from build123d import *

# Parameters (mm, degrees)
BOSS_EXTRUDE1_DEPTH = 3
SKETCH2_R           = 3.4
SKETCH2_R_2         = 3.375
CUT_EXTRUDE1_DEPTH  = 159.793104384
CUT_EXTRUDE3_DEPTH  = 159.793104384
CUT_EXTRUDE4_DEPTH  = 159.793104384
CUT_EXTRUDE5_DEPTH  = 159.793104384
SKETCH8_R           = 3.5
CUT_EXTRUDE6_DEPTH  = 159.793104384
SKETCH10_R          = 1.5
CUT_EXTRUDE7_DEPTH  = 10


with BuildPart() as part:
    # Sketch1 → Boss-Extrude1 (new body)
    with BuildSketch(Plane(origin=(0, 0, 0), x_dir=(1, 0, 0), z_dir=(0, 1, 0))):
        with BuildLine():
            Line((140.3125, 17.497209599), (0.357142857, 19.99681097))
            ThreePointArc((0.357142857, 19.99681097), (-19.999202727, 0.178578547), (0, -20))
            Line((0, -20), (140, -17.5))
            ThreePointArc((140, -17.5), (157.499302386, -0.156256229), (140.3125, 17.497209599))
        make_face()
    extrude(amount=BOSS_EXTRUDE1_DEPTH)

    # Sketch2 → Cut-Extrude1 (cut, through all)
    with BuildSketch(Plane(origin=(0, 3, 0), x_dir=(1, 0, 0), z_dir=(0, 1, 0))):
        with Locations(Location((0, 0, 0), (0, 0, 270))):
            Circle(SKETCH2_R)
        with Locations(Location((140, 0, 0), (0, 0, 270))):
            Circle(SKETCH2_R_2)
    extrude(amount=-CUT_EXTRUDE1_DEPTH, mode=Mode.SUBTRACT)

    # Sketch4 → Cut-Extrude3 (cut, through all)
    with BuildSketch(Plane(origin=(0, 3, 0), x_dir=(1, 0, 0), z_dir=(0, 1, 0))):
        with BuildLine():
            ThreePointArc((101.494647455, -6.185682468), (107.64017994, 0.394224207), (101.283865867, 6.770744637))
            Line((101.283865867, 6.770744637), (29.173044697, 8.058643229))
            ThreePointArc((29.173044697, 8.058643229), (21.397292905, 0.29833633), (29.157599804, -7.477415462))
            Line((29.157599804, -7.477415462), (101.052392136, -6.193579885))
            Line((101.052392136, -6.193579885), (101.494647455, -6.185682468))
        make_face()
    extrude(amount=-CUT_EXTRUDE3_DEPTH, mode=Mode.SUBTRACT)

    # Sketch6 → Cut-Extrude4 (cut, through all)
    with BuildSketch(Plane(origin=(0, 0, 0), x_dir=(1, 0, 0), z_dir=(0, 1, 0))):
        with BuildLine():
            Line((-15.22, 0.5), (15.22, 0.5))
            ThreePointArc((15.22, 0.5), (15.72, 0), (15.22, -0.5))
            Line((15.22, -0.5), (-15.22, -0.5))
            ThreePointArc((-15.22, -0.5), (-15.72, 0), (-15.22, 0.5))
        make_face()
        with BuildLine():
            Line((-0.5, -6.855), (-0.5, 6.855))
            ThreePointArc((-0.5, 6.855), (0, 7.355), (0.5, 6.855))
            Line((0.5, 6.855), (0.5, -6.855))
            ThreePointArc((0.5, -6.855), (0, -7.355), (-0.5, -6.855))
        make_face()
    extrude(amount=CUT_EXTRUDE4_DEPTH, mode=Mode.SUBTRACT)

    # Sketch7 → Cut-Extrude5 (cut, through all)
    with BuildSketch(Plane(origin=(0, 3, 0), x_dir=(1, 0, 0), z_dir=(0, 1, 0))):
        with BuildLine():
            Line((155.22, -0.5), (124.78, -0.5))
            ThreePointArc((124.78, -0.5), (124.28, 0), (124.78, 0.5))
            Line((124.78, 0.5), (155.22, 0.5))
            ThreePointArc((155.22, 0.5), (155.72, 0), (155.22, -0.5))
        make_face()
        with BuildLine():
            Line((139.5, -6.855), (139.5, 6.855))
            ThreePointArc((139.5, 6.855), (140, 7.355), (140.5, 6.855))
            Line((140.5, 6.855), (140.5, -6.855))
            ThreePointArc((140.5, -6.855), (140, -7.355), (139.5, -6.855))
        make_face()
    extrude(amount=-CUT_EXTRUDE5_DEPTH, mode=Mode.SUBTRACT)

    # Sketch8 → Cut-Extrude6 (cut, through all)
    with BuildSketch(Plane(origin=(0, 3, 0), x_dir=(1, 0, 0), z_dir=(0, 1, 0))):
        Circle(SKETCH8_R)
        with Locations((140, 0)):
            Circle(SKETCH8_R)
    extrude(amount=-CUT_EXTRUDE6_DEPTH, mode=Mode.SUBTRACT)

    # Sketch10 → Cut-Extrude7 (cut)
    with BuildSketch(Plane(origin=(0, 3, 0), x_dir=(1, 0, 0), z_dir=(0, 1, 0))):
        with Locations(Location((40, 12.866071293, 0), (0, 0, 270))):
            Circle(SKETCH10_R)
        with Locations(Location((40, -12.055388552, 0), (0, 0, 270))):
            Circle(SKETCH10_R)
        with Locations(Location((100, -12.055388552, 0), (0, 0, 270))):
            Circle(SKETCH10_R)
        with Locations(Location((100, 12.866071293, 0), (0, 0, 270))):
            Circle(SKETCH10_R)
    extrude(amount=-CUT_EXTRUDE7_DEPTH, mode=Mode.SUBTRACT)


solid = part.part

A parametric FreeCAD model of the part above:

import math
import FreeCAD as App
import Part
import Sketcher
from FreeCAD import Vector
Q = App.Units.Quantity

doc = App.newDocument("Part")
body = doc.addObject("PartDesign::Body", "Body")

# Sketch on XZ plane
sketch1 = body.newObject("Sketcher::SketchObject", "Sketch")
sketch1.AttachmentSupport = (doc.getObject("XZ_Plane"), [""])
sketch1.MapMode = "FlatFace"
sketch1.addGeometry([
    Part.LineSegment(Vector(140, -17, 0), Vector(0, -20, 0)),
    Part.ArcOfCircle(Part.Circle(Vector(0, 0, 0), Vector(0, 0, 1), 20), math.radians(90), math.radians(271)),
    Part.LineSegment(Vector(0, 20, 0), Vector(140, 18, 0)),
    Part.ArcOfCircle(Part.Circle(Vector(140, 0, 0), Vector(0, 0, 1), 18), math.radians(-89), math.radians(90)),
], False)
sketch1.addConstraint([
    Sketcher.Constraint("Tangent", 0, 2, 1, 2),
    Sketcher.Constraint("Coincident", 1, 1, 2, 1),
    Sketcher.Constraint("Coincident", 2, 2, 3, 2),
    Sketcher.Constraint("Tangent", 3, 1, 0, 1),
    Sketcher.Constraint("Coincident", 1, 3, -1, 1),
    Sketcher.Constraint("PointOnObject", 3, 3, -1),
    Sketcher.Constraint("PointOnObject", 1, 1, -2),
    Sketcher.Constraint("Vertical", 3, 3, 2, 2),
    Sketcher.Constraint("Radius", 1, Q("20 mm")),
    Sketcher.Constraint("Radius", 3, Q("17.5 mm")),
    Sketcher.Constraint("DistanceX", -1, 1, 3, 3, Q("140 mm")),
])
pad1 = body.newObject("PartDesign::Pad", "Pad")
pad1.Profile = sketch1
pad1.Length = 3
pad1.Reversed = True

# Sketch on XZ plane
sketch2 = body.newObject("Sketcher::SketchObject", "Sketch001")
sketch2.AttachmentSupport = (doc.getObject("XZ_Plane"), [""])
sketch2.MapMode = "FlatFace"
sketch2.AttachmentOffset = App.Placement(Vector(0, 0, -3), App.Rotation())
sketch2.addGeometry([
    Part.Circle(Vector(0, 0, 0), Vector(0, 0, 1), 3.4),
    Part.Circle(Vector(140, 0, 0), Vector(0, 0, 1), 3.4),
], False)
sketch2.addConstraint([
    Sketcher.Constraint("Coincident", 0, 3, -1, 1),
    Sketcher.Constraint("PointOnObject", 1, 3, -1),
    Sketcher.Constraint("Diameter", 0, Q("6.8 mm")),
    Sketcher.Constraint("Diameter", 1, Q("6.75 mm")),
    Sketcher.Constraint("DistanceX", -1, 1, 1, 3, Q("140 mm")),
])
pocket1 = body.newObject("PartDesign::Pocket", "Pocket")
pocket1.Profile = sketch2
pocket1.Type = "ThroughAll"
pocket1.Reversed = True

# Sketch on XZ plane
sketch3 = body.newObject("Sketcher::SketchObject", "Sketch002")
sketch3.AttachmentSupport = (doc.getObject("XZ_Plane"), [""])
sketch3.MapMode = "FlatFace"
sketch3.AttachmentOffset = App.Placement(Vector(0, 0, -3), App.Rotation())
sketch3.addGeometry([
    Part.ArcOfCircle(Part.Circle(Vector(101.16, -0.29, 0), Vector(0, 0, 1), 6.48), math.radians(-89), math.radians(87)),  # 0
    Part.LineSegment(Vector(101.28, -6.77, 0), Vector(29.17, -8.06, 0)),  # 1
    Part.ArcOfCircle(Part.Circle(Vector(29.17, -0.29, 0), Vector(0, 0, 1), 7.77), math.radians(90), math.radians(270)),  # 2
    Part.LineSegment(Vector(29.16, 7.48, 0), Vector(101.05, 6.19, 0)),  # 3
    Part.LineSegment(Vector(101.05, 6.19, 0), Vector(101.49, 6.19, 0)),  # 4
], False)
sketch3.addConstraint([
    Sketcher.Constraint("Coincident", 0, 1, 1, 1),
    Sketcher.Constraint("Coincident", 1, 2, 2, 2),
    Sketcher.Constraint("Coincident", 2, 1, 3, 1),
    Sketcher.Constraint("Coincident", 3, 2, 4, 1),
    Sketcher.Constraint("Coincident", 4, 2, 0, 2),
    Sketcher.Constraint("Parallel", 3, 4),
    Sketcher.Constraint("Radius", 0, Q("6.483204 mm")),
    Sketcher.Constraint("Radius", 2, Q("7.768033 mm")),
    Sketcher.Constraint("DistanceX", -1, 1, 2, 1, Q("29.1576 mm")),
    Sketcher.Constraint("DistanceY", 1, 2, 0, 1, Q("1.287899 mm")),
    Sketcher.Constraint("Distance", 1, Q("72.122321 mm")),
    Sketcher.Constraint("DistanceY", -1, 1, 3, 2, Q("6.19358 mm")),
    Sketcher.Constraint("DistanceX", 2, 3, 0, 3, Q("71.992512 mm")),
    Sketcher.Constraint("DistanceX", 0, 3, 0, 1, Q("0.126032 mm")),
    Sketcher.Constraint("DistanceX", 3, 2, 0, 3, Q("0.105442 mm")),
    Sketcher.Constraint("DistanceY", 0, 3, 4, 2, Q("6.474449 mm")),
    Sketcher.Constraint("Distance", 3, Q("71.906254 mm")),
])
pocket2 = body.newObject("PartDesign::Pocket", "Pocket001")
pocket2.Profile = sketch3
pocket2.Type = "ThroughAll"
pocket2.Reversed = True

# Sketch on XZ plane
sketch4 = body.newObject("Sketcher::SketchObject", "Sketch003")
sketch4.AttachmentSupport = (doc.getObject("XZ_Plane"), [""])
sketch4.MapMode = "FlatFace"
sketch4.addGeometry([
    Part.ArcOfCircle(Part.Circle(Vector(-15.2, 0, 0), Vector(0, 0, 1), 0.5), math.radians(90), math.radians(270)),  # 0
    Part.LineSegment(Vector(-15.2, 0.5, 0), Vector(-0.5, 0.5, 0)),  # 1
    Part.LineSegment(Vector(-0.5, 0.5, 0), Vector(-0.5, 6.9, 0)),  # 2
    Part.ArcOfCircle(Part.Circle(Vector(0, 6.9, 0), Vector(0, 0, 1), 0.5), math.radians(0), math.radians(180)),  # 3
    Part.LineSegment(Vector(0.5, 6.9, 0), Vector(0.5, 0.5, 0)),  # 4
    Part.LineSegment(Vector(0.5, 0.5, 0), Vector(15.2, 0.5, 0)),  # 5
    Part.ArcOfCircle(Part.Circle(Vector(15.2, 0, 0), Vector(0, 0, 1), 0.5), math.radians(-90), math.radians(90)),  # 6
    Part.LineSegment(Vector(15.2, -0.5, 0), Vector(0.5, -0.5, 0)),  # 7
    Part.LineSegment(Vector(0.5, -0.5, 0), Vector(0.5, -6.9, 0)),  # 8
    Part.ArcOfCircle(Part.Circle(Vector(0, -6.9, 0), Vector(0, 0, 1), 0.5), math.radians(180), math.radians(360)),  # 9
    Part.LineSegment(Vector(-0.5, -6.9, 0), Vector(-0.5, -0.5, 0)),  # 10
    Part.LineSegment(Vector(-0.5, -0.5, 0), Vector(-15.2, -0.5, 0)),  # 11
], False)
sketch4.addConstraint([
    Sketcher.Constraint("Tangent", 0, 1, 1, 1),
    Sketcher.Constraint("Coincident", 1, 2, 2, 1),
    Sketcher.Constraint("Tangent", 2, 2, 3, 2),
    Sketcher.Constraint("Tangent", 3, 1, 4, 1),
    Sketcher.Constraint("Coincident", 4, 2, 5, 1),
    Sketcher.Constraint("Tangent", 5, 2, 6, 2),
    Sketcher.Constraint("Tangent", 6, 1, 7, 1),
    Sketcher.Constraint("Coincident", 7, 2, 8, 1),
    Sketcher.Constraint("Tangent", 8, 2, 9, 2),
    Sketcher.Constraint("Tangent", 9, 1, 10, 1),
    Sketcher.Constraint("Coincident", 10, 2, 11, 1),
    Sketcher.Constraint("Tangent", 11, 2, 0, 2),
    Sketcher.Constraint("Horizontal", 1),
    Sketcher.Constraint("Vertical", 2),
    Sketcher.Constraint("Vertical", 4),
    Sketcher.Constraint("Horizontal", 5),
    Sketcher.Constraint("Horizontal", 7),
    Sketcher.Constraint("Vertical", 8),
    Sketcher.Constraint("Vertical", 10),
    Sketcher.Constraint("Horizontal", 11),
    Sketcher.Constraint("Equal", 0, 3),
    Sketcher.Constraint("Equal", 3, 6),
    Sketcher.Constraint("Equal", 6, 9),
    Sketcher.Constraint("Symmetric", 0, 3, 6, 3, -1, 1),
    Sketcher.Constraint("Symmetric", 3, 3, 9, 3, -1, 1),
    Sketcher.Constraint("Symmetric", 1, 2, 4, 2, -2),
    Sketcher.Constraint("Radius", 0, Q("0.5 mm")),
    Sketcher.Constraint("DistanceX", 1, 1, 1, 2, Q("14.72 mm")),
    Sketcher.Constraint("DistanceY", 2, 1, 2, 2, Q("6.355 mm")),
])
pocket3 = body.newObject("PartDesign::Pocket", "Pocket002")
pocket3.Profile = sketch4
pocket3.Type = "ThroughAll"

# Sketch on XZ plane
sketch5 = body.newObject("Sketcher::SketchObject", "Sketch004")
sketch5.AttachmentSupport = (doc.getObject("XZ_Plane"), [""])
sketch5.MapMode = "FlatFace"
sketch5.AttachmentOffset = App.Placement(Vector(0, 0, -3), App.Rotation())
sketch5.addGeometry([
    Part.ArcOfCircle(Part.Circle(Vector(155.2, 0, 0), Vector(0, 0, 1), 0.5), math.radians(-90), math.radians(90)),  # 0
    Part.LineSegment(Vector(155.2, -0.5, 0), Vector(140.5, -0.5, 0)),  # 1
    Part.LineSegment(Vector(140.5, -0.5, 0), Vector(140.5, -6.9, 0)),  # 2
    Part.ArcOfCircle(Part.Circle(Vector(140, -6.9, 0), Vector(0, 0, 1), 0.5), math.radians(180), math.radians(360)),  # 3
    Part.LineSegment(Vector(139.5, -6.9, 0), Vector(139.5, -0.5, 0)),  # 4
    Part.LineSegment(Vector(139.5, -0.5, 0), Vector(124.8, -0.5, 0)),  # 5
    Part.ArcOfCircle(Part.Circle(Vector(124.8, 0, 0), Vector(0, 0, 1), 0.5), math.radians(90), math.radians(270)),  # 6
    Part.LineSegment(Vector(124.8, 0.5, 0), Vector(139.5, 0.5, 0)),  # 7
    Part.LineSegment(Vector(139.5, 0.5, 0), Vector(139.5, 6.9, 0)),  # 8
    Part.ArcOfCircle(Part.Circle(Vector(140, 6.9, 0), Vector(0, 0, 1), 0.5), math.radians(0), math.radians(180)),  # 9
    Part.LineSegment(Vector(140.5, 6.9, 0), Vector(140.5, 0.5, 0)),  # 10
    Part.LineSegment(Vector(140.5, 0.5, 0), Vector(155.2, 0.5, 0)),  # 11
], False)
sketch5.addConstraint([
    Sketcher.Constraint("Tangent", 0, 1, 1, 1),
    Sketcher.Constraint("Coincident", 1, 2, 2, 1),
    Sketcher.Constraint("Tangent", 2, 2, 3, 2),
    Sketcher.Constraint("Tangent", 3, 1, 4, 1),
    Sketcher.Constraint("Coincident", 4, 2, 5, 1),
    Sketcher.Constraint("Tangent", 5, 2, 6, 2),
    Sketcher.Constraint("Tangent", 6, 1, 7, 1),
    Sketcher.Constraint("Coincident", 7, 2, 8, 1),
    Sketcher.Constraint("Tangent", 8, 2, 9, 2),
    Sketcher.Constraint("Tangent", 9, 1, 10, 1),
    Sketcher.Constraint("Coincident", 10, 2, 11, 1),
    Sketcher.Constraint("Tangent", 11, 2, 0, 2),
    Sketcher.Constraint("Horizontal", 1),
    Sketcher.Constraint("Vertical", 2),
    Sketcher.Constraint("Vertical", 4),
    Sketcher.Constraint("Horizontal", 5),
    Sketcher.Constraint("Horizontal", 7),
    Sketcher.Constraint("Vertical", 8),
    Sketcher.Constraint("Vertical", 10),
    Sketcher.Constraint("Horizontal", 11),
    Sketcher.Constraint("Equal", 0, 3),
    Sketcher.Constraint("Equal", 3, 6),
    Sketcher.Constraint("Equal", 6, 9),
    Sketcher.Constraint("Symmetric", 3, 3, 9, 3, -1),
    Sketcher.Constraint("PointOnObject", 0, 3, -1),
    Sketcher.Constraint("PointOnObject", 6, 3, -1),
    Sketcher.Constraint("Equal", 1, 5),
    Sketcher.Constraint("Radius", 0, Q("0.5 mm")),
    Sketcher.Constraint("DistanceX", -1, 1, 3, 3, Q("140 mm")),
    Sketcher.Constraint("DistanceX", 1, 2, 1, 1, Q("14.72 mm")),
    Sketcher.Constraint("DistanceY", 2, 2, 2, 1, Q("6.355 mm")),
])
pocket4 = body.newObject("PartDesign::Pocket", "Pocket003")
pocket4.Profile = sketch5
pocket4.Type = "ThroughAll"
pocket4.Reversed = True

# Sketch on XZ plane
sketch6 = body.newObject("Sketcher::SketchObject", "Sketch005")
sketch6.AttachmentSupport = (doc.getObject("XZ_Plane"), [""])
sketch6.MapMode = "FlatFace"
sketch6.AttachmentOffset = App.Placement(Vector(0, 0, -3), App.Rotation())
sketch6.addGeometry([
    Part.Circle(Vector(0, 0, 0), Vector(0, 0, 1), 3.5),
    Part.Circle(Vector(140, 0, 0), Vector(0, 0, 1), 3.5),
], False)
sketch6.addConstraint([
    Sketcher.Constraint("Coincident", 0, 3, -1, 1),
    Sketcher.Constraint("Equal", 0, 1),
    Sketcher.Constraint("PointOnObject", 1, 3, -1),
    Sketcher.Constraint("Diameter", 0, Q("7 mm")),
    Sketcher.Constraint("DistanceX", -1, 1, 1, 3, Q("140 mm")),
])
pocket5 = body.newObject("PartDesign::Pocket", "Pocket004")
pocket5.Profile = sketch6
pocket5.Type = "ThroughAll"
pocket5.Reversed = True

# Sketch on XZ plane
sketch7 = body.newObject("Sketcher::SketchObject", "Sketch006")
sketch7.AttachmentSupport = (doc.getObject("XZ_Plane"), [""])
sketch7.MapMode = "FlatFace"
sketch7.AttachmentOffset = App.Placement(Vector(0, 0, -3), App.Rotation())
sketch7.addGeometry([
    Part.Circle(Vector(40, -12.9, 0), Vector(0, 0, 1), 1.5),
    Part.Circle(Vector(40, 12.1, 0), Vector(0, 0, 1), 1.5),
    Part.Circle(Vector(100, 12.1, 0), Vector(0, 0, 1), 1.5),
    Part.Circle(Vector(100, -12.9, 0), Vector(0, 0, 1), 1.5),
], False)
sketch7.addConstraint([
    Sketcher.Constraint("Equal", 0, 1),
    Sketcher.Constraint("Equal", 1, 2),
    Sketcher.Constraint("Equal", 2, 3),
    Sketcher.Constraint("Horizontal", 1, 3, 2, 3),
    Sketcher.Constraint("Horizontal", 0, 3, 3, 3),
    Sketcher.Constraint("Vertical", 0, 3, 1, 3),
    Sketcher.Constraint("Vertical", 2, 3, 3, 3),
    Sketcher.Constraint("Diameter", 0, Q("3 mm")),
    Sketcher.Constraint("DistanceX", -1, 1, 0, 3, Q("40 mm")),
    Sketcher.Constraint("DistanceX", -1, 1, 2, 3, Q("100 mm")),
    Sketcher.Constraint("DistanceY", 0, 3, -1, 1, Q("12.866071 mm")),
    Sketcher.Constraint("DistanceY", -1, 1, 1, 3, Q("12.055389 mm")),
])
pocket6 = body.newObject("PartDesign::Pocket", "Pocket005")
pocket6.Profile = sketch7
pocket6.Length = 10
pocket6.Reversed = True

doc.recompute()
